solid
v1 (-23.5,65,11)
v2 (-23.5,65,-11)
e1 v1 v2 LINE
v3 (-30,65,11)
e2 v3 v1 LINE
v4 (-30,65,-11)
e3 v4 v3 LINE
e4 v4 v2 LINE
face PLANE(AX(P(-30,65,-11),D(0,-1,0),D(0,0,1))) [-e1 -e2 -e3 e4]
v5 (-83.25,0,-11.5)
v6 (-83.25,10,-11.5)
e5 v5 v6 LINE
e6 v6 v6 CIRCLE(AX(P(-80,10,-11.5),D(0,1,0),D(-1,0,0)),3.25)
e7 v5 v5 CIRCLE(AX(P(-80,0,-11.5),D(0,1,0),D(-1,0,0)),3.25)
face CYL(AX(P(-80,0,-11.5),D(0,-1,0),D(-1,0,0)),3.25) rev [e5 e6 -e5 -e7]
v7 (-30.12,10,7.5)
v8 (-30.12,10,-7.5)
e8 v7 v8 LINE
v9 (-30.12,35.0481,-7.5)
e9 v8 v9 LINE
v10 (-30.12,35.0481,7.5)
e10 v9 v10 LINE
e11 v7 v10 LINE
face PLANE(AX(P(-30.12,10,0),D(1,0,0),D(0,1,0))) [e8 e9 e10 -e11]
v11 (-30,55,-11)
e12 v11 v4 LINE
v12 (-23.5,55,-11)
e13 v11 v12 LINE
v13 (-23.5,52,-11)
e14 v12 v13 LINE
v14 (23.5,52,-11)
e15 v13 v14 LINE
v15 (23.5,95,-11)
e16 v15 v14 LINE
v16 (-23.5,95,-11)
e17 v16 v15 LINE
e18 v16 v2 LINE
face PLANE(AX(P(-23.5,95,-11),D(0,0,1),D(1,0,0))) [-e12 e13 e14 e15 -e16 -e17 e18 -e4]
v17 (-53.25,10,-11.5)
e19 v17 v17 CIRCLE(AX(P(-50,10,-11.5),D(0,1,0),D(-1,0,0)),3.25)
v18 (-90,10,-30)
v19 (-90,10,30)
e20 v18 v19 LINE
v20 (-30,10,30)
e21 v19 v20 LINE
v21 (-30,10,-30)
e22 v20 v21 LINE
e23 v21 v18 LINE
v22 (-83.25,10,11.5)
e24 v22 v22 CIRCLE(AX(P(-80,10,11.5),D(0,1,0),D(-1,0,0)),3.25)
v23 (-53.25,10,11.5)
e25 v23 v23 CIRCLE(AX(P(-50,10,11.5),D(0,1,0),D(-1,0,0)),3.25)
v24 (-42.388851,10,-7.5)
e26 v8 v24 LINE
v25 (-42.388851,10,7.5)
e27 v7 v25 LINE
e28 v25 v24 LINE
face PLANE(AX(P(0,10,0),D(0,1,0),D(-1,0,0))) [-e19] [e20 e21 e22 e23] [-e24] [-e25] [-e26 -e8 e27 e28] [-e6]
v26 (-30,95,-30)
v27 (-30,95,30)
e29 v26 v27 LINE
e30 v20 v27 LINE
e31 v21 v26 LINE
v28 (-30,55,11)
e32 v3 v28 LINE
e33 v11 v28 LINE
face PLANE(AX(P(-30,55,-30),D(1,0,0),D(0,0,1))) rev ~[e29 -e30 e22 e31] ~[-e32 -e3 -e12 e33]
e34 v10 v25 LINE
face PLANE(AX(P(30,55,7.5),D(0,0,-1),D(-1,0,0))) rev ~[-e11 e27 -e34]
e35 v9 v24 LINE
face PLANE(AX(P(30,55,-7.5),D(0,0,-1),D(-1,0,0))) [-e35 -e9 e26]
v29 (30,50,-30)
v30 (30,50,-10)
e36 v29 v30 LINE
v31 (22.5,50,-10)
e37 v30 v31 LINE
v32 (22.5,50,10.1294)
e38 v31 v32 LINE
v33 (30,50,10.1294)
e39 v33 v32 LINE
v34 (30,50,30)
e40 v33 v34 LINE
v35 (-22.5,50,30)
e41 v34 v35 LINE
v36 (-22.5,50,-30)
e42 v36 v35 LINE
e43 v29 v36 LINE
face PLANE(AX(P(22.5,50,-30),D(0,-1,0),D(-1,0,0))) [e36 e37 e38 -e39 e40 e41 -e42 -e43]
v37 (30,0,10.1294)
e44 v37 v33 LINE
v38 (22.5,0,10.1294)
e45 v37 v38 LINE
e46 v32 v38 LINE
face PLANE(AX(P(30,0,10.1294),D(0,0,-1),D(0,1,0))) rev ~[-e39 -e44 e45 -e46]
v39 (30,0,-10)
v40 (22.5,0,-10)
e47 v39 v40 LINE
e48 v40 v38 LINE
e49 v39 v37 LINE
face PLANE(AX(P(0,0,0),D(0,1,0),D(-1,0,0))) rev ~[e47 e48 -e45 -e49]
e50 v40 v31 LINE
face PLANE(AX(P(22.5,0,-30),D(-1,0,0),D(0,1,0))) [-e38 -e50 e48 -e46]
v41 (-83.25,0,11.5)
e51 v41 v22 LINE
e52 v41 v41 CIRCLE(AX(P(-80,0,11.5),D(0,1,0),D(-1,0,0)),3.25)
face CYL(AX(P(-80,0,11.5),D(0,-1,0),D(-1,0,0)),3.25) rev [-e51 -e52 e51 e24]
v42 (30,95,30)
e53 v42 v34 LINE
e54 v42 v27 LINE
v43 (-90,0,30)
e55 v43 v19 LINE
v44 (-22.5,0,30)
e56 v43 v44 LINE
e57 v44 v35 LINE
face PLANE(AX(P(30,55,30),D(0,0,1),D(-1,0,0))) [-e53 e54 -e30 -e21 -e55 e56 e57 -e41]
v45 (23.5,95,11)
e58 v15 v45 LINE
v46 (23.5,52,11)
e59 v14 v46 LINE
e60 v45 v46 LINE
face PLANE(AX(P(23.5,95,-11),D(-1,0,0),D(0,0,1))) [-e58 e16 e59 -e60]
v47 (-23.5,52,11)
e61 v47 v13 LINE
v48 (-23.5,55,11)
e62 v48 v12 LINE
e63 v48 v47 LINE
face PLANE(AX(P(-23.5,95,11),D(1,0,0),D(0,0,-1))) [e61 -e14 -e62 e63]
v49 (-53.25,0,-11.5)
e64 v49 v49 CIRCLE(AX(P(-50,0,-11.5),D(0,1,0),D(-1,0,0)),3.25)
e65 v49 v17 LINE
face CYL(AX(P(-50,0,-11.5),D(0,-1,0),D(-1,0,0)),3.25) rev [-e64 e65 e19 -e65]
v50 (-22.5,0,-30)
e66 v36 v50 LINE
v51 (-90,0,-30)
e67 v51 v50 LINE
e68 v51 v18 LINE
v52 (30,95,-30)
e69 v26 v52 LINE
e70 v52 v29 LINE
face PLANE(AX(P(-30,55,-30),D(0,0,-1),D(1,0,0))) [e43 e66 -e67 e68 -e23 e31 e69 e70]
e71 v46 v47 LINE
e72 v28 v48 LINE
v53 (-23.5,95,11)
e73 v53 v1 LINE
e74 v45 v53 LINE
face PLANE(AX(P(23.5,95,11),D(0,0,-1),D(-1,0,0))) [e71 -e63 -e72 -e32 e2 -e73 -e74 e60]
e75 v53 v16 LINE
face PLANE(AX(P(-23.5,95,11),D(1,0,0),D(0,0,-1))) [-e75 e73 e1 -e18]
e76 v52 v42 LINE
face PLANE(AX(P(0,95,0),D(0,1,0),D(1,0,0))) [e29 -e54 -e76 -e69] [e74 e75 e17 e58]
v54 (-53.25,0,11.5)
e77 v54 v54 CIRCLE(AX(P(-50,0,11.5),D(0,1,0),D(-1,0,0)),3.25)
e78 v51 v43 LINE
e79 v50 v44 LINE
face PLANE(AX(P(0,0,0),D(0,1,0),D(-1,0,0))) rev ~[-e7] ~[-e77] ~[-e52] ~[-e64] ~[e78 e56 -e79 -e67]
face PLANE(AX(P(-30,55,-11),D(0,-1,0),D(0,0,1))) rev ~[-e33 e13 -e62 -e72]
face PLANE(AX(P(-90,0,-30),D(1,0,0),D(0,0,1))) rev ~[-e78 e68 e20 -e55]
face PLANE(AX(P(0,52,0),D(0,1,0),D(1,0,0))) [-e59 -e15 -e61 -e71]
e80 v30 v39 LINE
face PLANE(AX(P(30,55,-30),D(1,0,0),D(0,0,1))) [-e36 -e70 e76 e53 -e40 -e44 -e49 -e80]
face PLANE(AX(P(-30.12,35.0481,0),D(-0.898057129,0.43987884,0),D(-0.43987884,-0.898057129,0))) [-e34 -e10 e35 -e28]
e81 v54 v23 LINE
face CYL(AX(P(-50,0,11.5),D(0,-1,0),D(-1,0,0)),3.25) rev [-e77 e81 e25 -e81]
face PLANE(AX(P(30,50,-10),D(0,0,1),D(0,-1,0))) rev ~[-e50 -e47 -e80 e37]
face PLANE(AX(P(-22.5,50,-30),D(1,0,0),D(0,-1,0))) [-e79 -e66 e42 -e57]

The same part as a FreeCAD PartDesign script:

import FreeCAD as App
import Part
import Sketcher


def add_polygon(sketch, points):
    """Adds a closed chain of lines whose ends are joined by coincident constraints."""
    first, n = sketch.GeometryCount, len(points)
    for a, b in zip(points, points[1:] + points[:1]):
        sketch.addGeometry(Part.LineSegment(App.Vector(*a, 0), App.Vector(*b, 0)), False)
    for i in range(n):
        sketch.addConstraint(Sketcher.Constraint("Coincident", first + i, 2, first + (i + 1) % n, 1))

doc = App.newDocument("Part")
body = doc.addObject("PartDesign::Body", "Body")

# Sketch on XZ plane
sketch1 = body.newObject("Sketcher::SketchObject", "Sketch")
sketch1.AttachmentSupport = (doc.getObject("XZ_Plane"), [""])
sketch1.MapMode = "FlatFace"
add_polygon(sketch1, [(-30, 30), (30, 30), (30, -30), (-30, -30)])  # lines 0-3
sketch1.addConstraint([
    Sketcher.Constraint("Horizontal", 0),
    Sketcher.Constraint("Vertical", 1),
    Sketcher.Constraint("Horizontal", 2),
    Sketcher.Constraint("Vertical", 3),
    Sketcher.Constraint("Symmetric", 0, 2, 2, 2, -1, 1),
    Sketcher.Constraint("Equal", 2, 1),
    Sketcher.Constraint("DistanceX", 0, 1, 0, 2, 60.0),
])
pad1 = body.newObject("PartDesign::Pad", "Pad")
pad1.Profile = sketch1
pad1.Length = 55
pad1.Reversed = True

# Sketch on XY plane
sketch2 = body.newObject("Sketcher::SketchObject", "Sketch001")
sketch2.AttachmentSupport = (doc.getObject("XY_Plane"), [""])
sketch2.MapMode = "FlatFace"
sketch2.AttachmentOffset = App.Placement(App.Vector(0, 0, -30), App.Rotation())
add_polygon(sketch2, [(-22, 50), (22, 50), (22, 0), (-22, 0)])  # lines 0-3
sketch2.addConstraint([
    Sketcher.Constraint("Horizontal", 0),
    Sketcher.Constraint("Vertical", 1),
    Sketcher.Constraint("Horizontal", 2),
    Sketcher.Constraint("Vertical", 3),
    Sketcher.Constraint("Symmetric", 1, 2, 2, 2, -1, 1),
    Sketcher.Constraint("DistanceX", 0, 1, 0, 2, 45.0),
    Sketcher.Constraint("DistanceY", 1, 2, 1, 1, 50.0),
])
pocket1 = body.newObject("PartDesign::Pocket", "Pocket")
pocket1.Profile = sketch2
pocket1.Length = 190
pocket1.Reversed = True

# Sketch on XZ plane
sketch3 = body.newObject("Sketcher::SketchObject", "Sketch002")
sketch3.AttachmentSupport = (doc.getObject("XZ_Plane"), [""])
sketch3.MapMode = "FlatFace"
add_polygon(sketch3, [(-30, 30), (-30, -30), (-90, -30), (-90, 30)])  # lines 0-3
sketch3.addGeometry(Part.Circle(App.Vector(-50, -11.5, 0), App.Vector(0, 0, 1), 3.2), False)  # 4
sketch3.addGeometry(Part.Circle(App.Vector(-80, -11.5, 0), App.Vector(0, 0, 1), 3.2), False)  # 5
sketch3.addGeometry(Part.Circle(App.Vector(-50, 11.5, 0), App.Vector(0, 0, 1), 3.2), False)  # 6
sketch3.addGeometry(Part.Circle(App.Vector(-80, 11.5, 0), App.Vector(0, 0, 1), 3.2), False)  # 7
sketch3.addConstraint([
    Sketcher.Constraint("Vertical", 0),
    Sketcher.Constraint("Horizontal", 1),
    Sketcher.Constraint("Vertical", 2),
    Sketcher.Constraint("Horizontal", 3),
    Sketcher.Constraint("Equal", 4, 5),
    Sketcher.Constraint("Equal", 5, 6),
    Sketcher.Constraint("Equal", 6, 7),
    Sketcher.Constraint("Symmetric", 4, 3, 6, 3, -1),
    Sketcher.Constraint("Symmetric", 5, 3, 7, 3, -1),
    Sketcher.Constraint("Horizontal", 4, 3, 5, 3),
    Sketcher.Constraint("Equal", 3, 0),
    Sketcher.Constraint("Diameter", 4, 6.5),
    Sketcher.Constraint("DistanceX", 1, 2, 1, 1, 60.0),
    Sketcher.Constraint("DistanceX", 0, 2, -1, 1, 30.0),
    Sketcher.Constraint("DistanceY", 0, 2, -1, 1, 30.0),
    Sketcher.Constraint("DistanceX", 5, 3, 4, 3, 30.0),
    Sketcher.Constraint("DistanceY", 4, 3, 6, 3, 23.0),
    Sketcher.Constraint("DistanceX", 4, 3, 0, 2, 20.0),
])
pad2 = body.newObject("PartDesign::Pad", "Pad001")
pad2.Profile = sketch3
pad2.Length = 10
pad2.Reversed = True

# Sketch on XZ plane
sketch4 = body.newObject("Sketcher::SketchObject", "Sketch003")
sketch4.AttachmentSupport = (doc.getObject("XZ_Plane"), [""])
sketch4.MapMode = "FlatFace"
sketch4.AttachmentOffset = App.Placement(App.Vector(0, 0, -55), App.Rotation())
add_polygon(sketch4, [(30, -30), (-30, -30), (-30, 30), (30, 30)])  # lines 0-3
sketch4.addConstraint([
    Sketcher.Constraint("Horizontal", 0),
    Sketcher.Constraint("Vertical", 1),
    Sketcher.Constraint("Horizontal", 2),
    Sketcher.Constraint("Vertical", 3),
    Sketcher.Constraint("Symmetric", 0, 2, 2, 2, -1, 1),
    Sketcher.Constraint("Equal", 2, 1),
    Sketcher.Constraint("DistanceX", 0, 2, 0, 1, 60.0),
])
pad3 = body.newObject("PartDesign::Pad", "Pad002")
pad3.Profile = sketch4
pad3.Length = 40
pad3.Reversed = True

# Sketch on XZ plane
sketch5 = body.newObject("Sketcher::SketchObject", "Sketch004")
sketch5.AttachmentSupport = (doc.getObject("XZ_Plane"), [""])
sketch5.MapMode = "FlatFace"
sketch5.AttachmentOffset = App.Placement(App.Vector(0, 0, -95), App.Rotation())
add_polygon(sketch5, [(24, -11), (-24, -11), (-24, 11), (24, 11)])  # lines 0-3
sketch5.addConstraint([
    Sketcher.Constraint("Horizontal", 0),
    Sketcher.Constraint("Vertical", 1),
    Sketcher.Constraint("Horizontal", 2),
    Sketcher.Constraint("Vertical", 3),
    Sketcher.Constraint("Symmetric", 0, 2, 2, 2, -1, 1),
    Sketcher.Constraint("DistanceX", 0, 2, 0, 1, 47.0),
    Sketcher.Constraint("DistanceY", 1, 1, 1, 2, 22.0),
])
pocket2 = body.newObject("PartDesign::Pocket", "Pocket001")
pocket2.Profile = sketch5
pocket2.Length = 43
pocket2.Reversed = True

# Sketch on YZ plane
sketch6 = body.newObject("Sketcher::SketchObject", "Sketch005")
sketch6.AttachmentSupport = (doc.getObject("YZ_Plane"), [""])
sketch6.MapMode = "FlatFace"
sketch6.AttachmentOffset = App.Placement(App.Vector(0, 0, -30), App.Rotation())
add_polygon(sketch6, [(65, -11), (55, -11), (55, 11), (65, 11)])  # lines 0-3
sketch6.addConstraint([
    Sketcher.Constraint("Horizontal", 0),
    Sketcher.Constraint("Vertical", 1),
    Sketcher.Constraint("Horizontal", 2),
    Sketcher.Constraint("Vertical", 3),
    Sketcher.Constraint("DistanceX", 0, 2, 0, 1, 10.0),
    Sketcher.Constraint("DistanceY", 1, 1, 1, 2, 22.0),
    Sketcher.Constraint("DistanceX", -1, 1, 0, 2, 55.0),
    Sketcher.Constraint("DistanceY", 0, 2, -1, 1, 11.0),
])
pocket3 = body.newObject("PartDesign::Pocket", "Pocket002")
pocket3.Profile = sketch6
pocket3.Length = 10
pocket3.Reversed = True

# Sketch on XY plane
sketch7 = body.newObject("Sketcher::SketchObject", "Sketch006")
sketch7.AttachmentSupport = (doc.getObject("XY_Plane"), [""])
sketch7.MapMode = "FlatFace"
add_polygon(sketch7, [(-30, 35), (-30, 10), (-42, 10)])  # lines 0-2
sketch7.addConstraint([
    Sketcher.Constraint("Vertical", 0),
    Sketcher.Constraint("Horizontal", 1),
    Sketcher.Constraint("DistanceY", -1, 1, 0, 2, 10.0),
    Sketcher.Constraint("DistanceY", 0, 2, 0, 1, 25.048),
    Sketcher.Constraint("DistanceX", 0, 2, -1, 1, 30.12),
    Sketcher.Constraint("DistanceX", 1, 2, 1, 1, 12.2689),
])
pad4 = body.newObject("PartDesign::Pad", "Pad003")
pad4.Profile = sketch7
pad4.Length = 15
pad4.Midplane = True

# Sketch on YZ plane
sketch8 = body.newObject("Sketcher::SketchObject", "Sketch007")
sketch8.AttachmentSupport = (doc.getObject("YZ_Plane"), [""])
sketch8.MapMode = "FlatFace"
sketch8.AttachmentOffset = App.Placement(App.Vector(0, 0, 30), App.Rotation())
add_polygon(sketch8, [(50, -10), (0, -10), (0, -30), (50, -30)])  # lines 0-3
add_polygon(sketch8, [(0, 30), (0, 10), (50, 10), (50, 30)])  # lines 4-7
sketch8.addConstraint([
    Sketcher.Constraint("Horizontal", 0),
    Sketcher.Constraint("Vertical", 1),
    Sketcher.Constraint("Horizontal", 2),
    Sketcher.Constraint("Vertical", 3),
    Sketcher.Constraint("Vertical", 4),
    Sketcher.Constraint("Horizontal", 5),
    Sketcher.Constraint("Vertical", 6),
    Sketcher.Constraint("Horizontal", 7),
    Sketcher.Constraint("Symmetric", 1, 2, 7, 2, -1, 1),
    Sketcher.Constraint("PointOnObject", 0, 2, -2),
    Sketcher.Constraint("Vertical", 3, 2, 5, 2),
    Sketcher.Constraint("DistanceY", 1, 2, 1, 1, 20.0),
    Sketcher.Constraint("DistanceX", 0, 2, 0, 1, 50.0),
    Sketcher.Constraint("DistanceY", 0, 2, -1, 1, 10.0),
    Sketcher.Constraint("DistanceY", 4, 2, 4, 1, 19.8706),
])
pocket4 = body.newObject("PartDesign::Pocket", "Pocket003")
pocket4.Profile = sketch8
pocket4.Length = 10

doc.recompute()
